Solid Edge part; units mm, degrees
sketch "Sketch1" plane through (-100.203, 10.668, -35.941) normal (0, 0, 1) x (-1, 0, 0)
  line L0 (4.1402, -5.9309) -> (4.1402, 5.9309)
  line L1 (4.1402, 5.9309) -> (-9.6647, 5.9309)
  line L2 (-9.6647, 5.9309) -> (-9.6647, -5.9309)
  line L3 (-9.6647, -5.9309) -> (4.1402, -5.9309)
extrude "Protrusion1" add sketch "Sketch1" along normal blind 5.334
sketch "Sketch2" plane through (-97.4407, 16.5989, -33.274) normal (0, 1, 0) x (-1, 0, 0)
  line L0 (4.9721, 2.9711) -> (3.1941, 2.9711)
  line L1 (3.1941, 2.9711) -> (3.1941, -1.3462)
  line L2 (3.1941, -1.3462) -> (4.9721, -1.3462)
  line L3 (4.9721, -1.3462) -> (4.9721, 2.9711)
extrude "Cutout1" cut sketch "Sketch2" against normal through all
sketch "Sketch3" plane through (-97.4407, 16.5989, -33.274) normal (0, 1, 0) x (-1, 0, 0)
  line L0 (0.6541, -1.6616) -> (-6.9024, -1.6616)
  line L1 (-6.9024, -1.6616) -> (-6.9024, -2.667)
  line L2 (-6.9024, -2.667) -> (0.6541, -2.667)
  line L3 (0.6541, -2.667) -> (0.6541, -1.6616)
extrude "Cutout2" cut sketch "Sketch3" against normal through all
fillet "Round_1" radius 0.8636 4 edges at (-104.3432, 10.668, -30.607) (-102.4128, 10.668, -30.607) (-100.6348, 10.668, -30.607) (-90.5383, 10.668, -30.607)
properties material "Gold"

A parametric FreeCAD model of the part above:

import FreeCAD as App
import Part
import Sketcher

V = App.Vector
Q = App.Units.Quantity


def edges_at(feature, points):
    """Names of the edges that pass closest to the given points."""
    edges = feature.Shape.Edges
    near = lambda p: min(range(len(edges)), key=lambda i: edges[i].distToShape(Part.Vertex(*p))[0])
    return sorted({f"Edge{near(p) + 1}" for p in points})


def add_polygon(sketch, points):
    """Adds a closed chain of lines whose ends are joined by coincident constraints."""
    first, n = sketch.GeometryCount, len(points)
    for a, b in zip(points, points[1:] + points[:1]):
        sketch.addGeometry(Part.LineSegment(App.Vector(*a, 0), App.Vector(*b, 0)), False)
    for i in range(n):
        sketch.addConstraint(Sketcher.Constraint("Coincident", first + i, 2, first + (i + 1) % n, 1))

doc = App.newDocument("Part")
body = doc.addObject("PartDesign::Body", "Body")

# Sketch on XY plane
sketch1 = doc.addObject("Sketcher::SketchObject", "Sketch")
body.addObject(sketch1)
sketch1.AttachmentSupport = (doc.XY_Plane, [""])
sketch1.MapMode = "FlatFace"
sketch1.AttachmentOffset = App.Placement(V(0, 0, -1.415 * 25.4), App.Rotation())
add_polygon(sketch1, [(-91, 17), (-104, 17), (-104, 5), (-91, 5)])  # lines 0-3
sketch1.addConstraint(Sketcher.Constraint("Horizontal", 0))
sketch1.addConstraint(Sketcher.Constraint("Vertical", 1))
sketch1.addConstraint(Sketcher.Constraint("Horizontal", 2))
sketch1.addConstraint(Sketcher.Constraint("Vertical", 3))
sketch1.addConstraint(Sketcher.Constraint("DistanceY", 1, 2, 1, 1, Q("0.467 in")))
sketch1.addConstraint(Sketcher.Constraint("DistanceX", 0, 2, 0, 1, Q("0.5435 in")))
sketch1.addConstraint(Sketcher.Constraint("DistanceX", 0, 2, -1, 1, Q("4.108 in")))
sketch1.addConstraint(Sketcher.Constraint("DistanceY", -1, 1, 0, 2, Q("0.6535 in")))
pad1 = doc.addObject("PartDesign::Pad", "Pad")
body.addObject(pad1)
pad1.Profile = sketch1
pad1.Length = Q("0.21 in")

# Sketch on XZ plane
sketch2 = doc.addObject("Sketcher::SketchObject", "Sketch001")
body.addObject(sketch2)
sketch2.AttachmentSupport = (doc.XZ_Plane, [""])
sketch2.MapMode = "FlatFace"
sketch2.AttachmentOffset = App.Placement(V(0, 0, -0.6535 * 25.4), App.Rotation())
add_polygon(sketch2, [(-102.4, -34.6), (-102.4, -30.3), (-100.6, -30.3), (-100.6, -34.6)])  # lines 0-3
sketch2.addConstraint(Sketcher.Constraint("Vertical", 0))
sketch2.addConstraint(Sketcher.Constraint("Horizontal", 1))
sketch2.addConstraint(Sketcher.Constraint("Vertical", 2))
sketch2.addConstraint(Sketcher.Constraint("Horizontal", 3))
sketch2.addConstraint(Sketcher.Constraint("DistanceX", 1, 1, 1, 2, Q("0.07 in")))
sketch2.addConstraint(Sketcher.Constraint("DistanceX", 0, 2, -1, 1, Q("4.032 in")))
sketch2.addConstraint(Sketcher.Constraint("DistanceY", 2, 2, -1, 1, Q("1.363 in")))
sketch2.addConstraint(Sketcher.Constraint("DistanceY", 0, 1, 0, 2, 4.3173))
pocket1 = doc.addObject("PartDesign::Pocket", "Pocket")
body.addObject(pocket1)
pocket1.Profile = sketch2
pocket1.Type = "ThroughAll"
pocket1.Reversed = True

# Sketch on XZ plane
sketch3 = doc.addObject("Sketcher::SketchObject", "Sketch002")
body.addObject(sketch3)
sketch3.AttachmentSupport = (doc.XZ_Plane, [""])
sketch3.MapMode = "FlatFace"
sketch3.AttachmentOffset = App.Placement(V(0, 0, -0.6535 * 25.4), App.Rotation())
add_polygon(sketch3, [(-98.1, -35.9), (-98.1, -34.9), (-90.5, -34.9), (-90.5, -35.9)])  # lines 0-3
sketch3.addConstraint(Sketcher.Constraint("Vertical", 0))
sketch3.addConstraint(Sketcher.Constraint("Horizontal", 1))
sketch3.addConstraint(Sketcher.Constraint("Vertical", 2))
sketch3.addConstraint(Sketcher.Constraint("Horizontal", 3))
sketch3.addConstraint(Sketcher.Constraint("DistanceX", 1, 1, 1, 2, Q("0.2975 in")))
sketch3.addConstraint(Sketcher.Constraint("DistanceX", 0, 2, -1, 1, Q("3.862 in")))
sketch3.addConstraint(Sketcher.Constraint("DistanceY", 2, 2, -1, 1, Q("1.415 in")))
sketch3.addConstraint(Sketcher.Constraint("DistanceY", 0, 1, 0, 2, 1.0054))
pocket2 = doc.addObject("PartDesign::Pocket", "Pocket001")
body.addObject(pocket2)
pocket2.Profile = sketch3
pocket2.Type = "ThroughAll"
pocket2.Reversed = True
doc.recompute()

fillet = doc.addObject("PartDesign::Fillet", "Fillet")
body.addObject(fillet)
fillet.Base = (pocket2, edges_at(pocket2, [
    (-104.343, 10.668, -30.607),
    (-102.413, 10.668, -30.607),
    (-100.635, 10.668, -30.607),
    (-90.538, 10.668, -30.607),
]))
fillet.Radius = Q("0.034 in")

doc.recompute()
